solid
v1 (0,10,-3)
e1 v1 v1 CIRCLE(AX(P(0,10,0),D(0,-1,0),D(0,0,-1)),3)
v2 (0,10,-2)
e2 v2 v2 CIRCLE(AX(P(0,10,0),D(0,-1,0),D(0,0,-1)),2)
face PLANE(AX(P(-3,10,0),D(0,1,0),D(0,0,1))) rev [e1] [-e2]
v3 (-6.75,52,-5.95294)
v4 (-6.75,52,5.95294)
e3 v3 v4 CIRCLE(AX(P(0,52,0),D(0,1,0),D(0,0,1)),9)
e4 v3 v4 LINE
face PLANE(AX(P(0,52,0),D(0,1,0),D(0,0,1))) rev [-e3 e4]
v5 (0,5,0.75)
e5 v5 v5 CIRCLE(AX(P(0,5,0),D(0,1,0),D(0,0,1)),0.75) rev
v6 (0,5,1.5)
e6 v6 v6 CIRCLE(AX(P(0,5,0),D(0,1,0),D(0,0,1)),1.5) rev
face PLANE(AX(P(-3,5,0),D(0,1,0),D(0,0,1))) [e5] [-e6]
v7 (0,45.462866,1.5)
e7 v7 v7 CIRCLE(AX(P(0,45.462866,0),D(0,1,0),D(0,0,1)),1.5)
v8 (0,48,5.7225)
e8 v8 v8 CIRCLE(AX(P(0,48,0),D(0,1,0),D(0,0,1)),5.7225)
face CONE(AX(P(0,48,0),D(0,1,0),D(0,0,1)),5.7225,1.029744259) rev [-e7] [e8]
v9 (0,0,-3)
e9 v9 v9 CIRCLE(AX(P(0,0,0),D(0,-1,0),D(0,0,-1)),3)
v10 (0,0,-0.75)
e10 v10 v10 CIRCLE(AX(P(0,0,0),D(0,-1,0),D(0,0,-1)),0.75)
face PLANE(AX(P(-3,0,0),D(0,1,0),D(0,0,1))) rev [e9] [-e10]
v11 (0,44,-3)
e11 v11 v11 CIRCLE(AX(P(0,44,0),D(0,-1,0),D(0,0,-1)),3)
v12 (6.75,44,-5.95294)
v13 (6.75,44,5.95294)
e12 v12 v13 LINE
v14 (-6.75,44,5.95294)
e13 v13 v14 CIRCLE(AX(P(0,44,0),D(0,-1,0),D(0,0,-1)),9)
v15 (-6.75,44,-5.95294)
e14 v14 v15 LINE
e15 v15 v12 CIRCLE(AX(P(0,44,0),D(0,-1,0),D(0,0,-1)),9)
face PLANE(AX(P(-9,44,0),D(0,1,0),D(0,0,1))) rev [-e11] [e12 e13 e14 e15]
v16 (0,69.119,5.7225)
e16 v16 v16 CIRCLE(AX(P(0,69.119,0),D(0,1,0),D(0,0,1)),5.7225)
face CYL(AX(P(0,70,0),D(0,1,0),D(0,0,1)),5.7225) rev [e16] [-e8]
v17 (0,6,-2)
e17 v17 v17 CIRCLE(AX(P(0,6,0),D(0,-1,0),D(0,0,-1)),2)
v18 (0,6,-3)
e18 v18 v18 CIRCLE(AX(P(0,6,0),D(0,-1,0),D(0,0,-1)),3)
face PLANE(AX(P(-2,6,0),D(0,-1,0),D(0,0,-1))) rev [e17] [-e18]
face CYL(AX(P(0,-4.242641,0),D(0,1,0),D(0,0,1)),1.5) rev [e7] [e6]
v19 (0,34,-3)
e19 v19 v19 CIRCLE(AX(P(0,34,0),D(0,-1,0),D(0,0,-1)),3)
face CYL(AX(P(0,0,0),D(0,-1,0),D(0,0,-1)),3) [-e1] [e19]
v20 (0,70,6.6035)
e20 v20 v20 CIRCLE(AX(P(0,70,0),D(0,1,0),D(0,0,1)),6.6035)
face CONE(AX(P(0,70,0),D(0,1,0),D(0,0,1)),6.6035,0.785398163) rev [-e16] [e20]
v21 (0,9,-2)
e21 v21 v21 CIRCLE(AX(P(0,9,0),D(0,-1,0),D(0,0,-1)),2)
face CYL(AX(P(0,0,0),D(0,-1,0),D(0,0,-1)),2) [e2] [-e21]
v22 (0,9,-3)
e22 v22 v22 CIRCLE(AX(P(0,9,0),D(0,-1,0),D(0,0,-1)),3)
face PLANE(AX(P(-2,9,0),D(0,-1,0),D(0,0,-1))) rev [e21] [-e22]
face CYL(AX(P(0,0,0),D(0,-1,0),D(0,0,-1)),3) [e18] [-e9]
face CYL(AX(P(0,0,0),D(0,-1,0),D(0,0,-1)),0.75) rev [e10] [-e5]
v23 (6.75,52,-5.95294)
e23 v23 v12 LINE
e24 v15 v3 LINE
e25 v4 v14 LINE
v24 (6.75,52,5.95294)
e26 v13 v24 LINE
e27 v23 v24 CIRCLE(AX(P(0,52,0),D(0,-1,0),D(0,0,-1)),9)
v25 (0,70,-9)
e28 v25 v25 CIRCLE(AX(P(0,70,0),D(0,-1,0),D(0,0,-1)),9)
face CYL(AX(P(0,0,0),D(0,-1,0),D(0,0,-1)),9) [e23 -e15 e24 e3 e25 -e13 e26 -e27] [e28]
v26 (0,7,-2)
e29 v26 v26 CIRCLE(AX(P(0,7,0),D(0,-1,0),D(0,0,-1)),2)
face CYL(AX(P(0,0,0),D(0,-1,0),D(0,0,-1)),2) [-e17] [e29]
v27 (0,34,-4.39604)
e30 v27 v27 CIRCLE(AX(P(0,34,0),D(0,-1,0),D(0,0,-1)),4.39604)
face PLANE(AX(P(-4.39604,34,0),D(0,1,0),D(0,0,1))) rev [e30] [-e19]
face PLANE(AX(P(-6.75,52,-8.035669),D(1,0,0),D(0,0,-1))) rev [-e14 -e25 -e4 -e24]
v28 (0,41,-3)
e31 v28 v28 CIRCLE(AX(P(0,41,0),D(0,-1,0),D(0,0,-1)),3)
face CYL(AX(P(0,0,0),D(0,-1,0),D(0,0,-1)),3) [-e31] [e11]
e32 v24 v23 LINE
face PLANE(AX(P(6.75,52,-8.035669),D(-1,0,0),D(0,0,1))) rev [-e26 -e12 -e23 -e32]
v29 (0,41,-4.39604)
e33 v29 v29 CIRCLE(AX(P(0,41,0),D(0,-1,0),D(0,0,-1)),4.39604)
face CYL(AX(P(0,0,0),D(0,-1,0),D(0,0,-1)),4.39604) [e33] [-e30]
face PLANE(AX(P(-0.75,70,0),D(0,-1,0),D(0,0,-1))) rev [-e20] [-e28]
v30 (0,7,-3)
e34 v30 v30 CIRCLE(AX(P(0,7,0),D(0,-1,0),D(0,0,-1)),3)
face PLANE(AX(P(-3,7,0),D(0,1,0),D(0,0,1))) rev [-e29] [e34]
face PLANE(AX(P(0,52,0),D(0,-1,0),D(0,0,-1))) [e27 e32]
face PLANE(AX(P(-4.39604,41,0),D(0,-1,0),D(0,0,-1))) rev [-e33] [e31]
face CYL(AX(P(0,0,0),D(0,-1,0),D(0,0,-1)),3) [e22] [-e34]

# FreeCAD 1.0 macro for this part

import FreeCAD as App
import Part
import Sketcher

V = App.Vector

doc = App.newDocument("Part")
body = doc.addObject("PartDesign::Body", "Body")

# Sketch on XY plane
sketch1 = body.newObject("Sketcher::SketchObject", "Sketch")
sketch1.AttachmentSupport = (doc.getObject("XY_Plane"), [""])
sketch1.MapMode = "FlatFace"
sketch1.addGeometry([
    Part.LineSegment(V(-0.8, 0, 0), V(-0.8, 70, 0)),  # 0
    Part.LineSegment(V(-0.8, 70, 0), V(-9, 70, 0)),  # 1
    Part.LineSegment(V(-9, 70, 0), V(-9, 44, 0)),  # 2
    Part.LineSegment(V(-9, 44, 0), V(-3, 44, 0)),  # 3
    Part.LineSegment(V(-3, 44, 0), V(-3, 41, 0)),  # 4
    Part.LineSegment(V(-3, 41, 0), V(-4.4, 41, 0)),  # 5
    Part.LineSegment(V(-4.4, 41, 0), V(-4.4, 34, 0)),  # 6
    Part.LineSegment(V(-4.4, 34, 0), V(-3, 34, 0)),  # 7
    Part.LineSegment(V(-3, 34, 0), V(-3, 10, 0)),  # 8
    Part.LineSegment(V(-3, 10, 0), V(-2, 10, 0)),  # 9
    Part.LineSegment(V(-2, 10, 0), V(-2, 9, 0)),  # 10
    Part.LineSegment(V(-2, 9, 0), V(-3, 9, 0)),  # 11
    Part.LineSegment(V(-3, 9, 0), V(-3, 7, 0)),  # 12
    Part.LineSegment(V(-3, 7, 0), V(-2, 7, 0)),  # 13
    Part.LineSegment(V(-2, 7, 0), V(-2, 6, 0)),  # 14
    Part.LineSegment(V(-2, 6, 0), V(-3, 6, 0)),  # 15
    Part.LineSegment(V(-3, 6, 0), V(-3, 0, 0)),  # 16
    Part.LineSegment(V(-3, 0, 0), V(-0.8, 0, 0)),  # 17
], False)
sketch1.addConstraint([
    Sketcher.Constraint("Coincident", 0, 2, 1, 1),
    Sketcher.Constraint("Coincident", 1, 2, 2, 1),
    Sketcher.Constraint("Coincident", 2, 2, 3, 1),
    Sketcher.Constraint("Coincident", 3, 2, 4, 1),
    Sketcher.Constraint("Coincident", 4, 2, 5, 1),
    Sketcher.Constraint("Coincident", 5, 2, 6, 1),
    Sketcher.Constraint("Coincident", 6, 2, 7, 1),
    Sketcher.Constraint("Coincident", 7, 2, 8, 1),
    Sketcher.Constraint("Coincident", 8, 2, 9, 1),
    Sketcher.Constraint("Coincident", 9, 2, 10, 1),
    Sketcher.Constraint("Coincident", 10, 2, 11, 1),
    Sketcher.Constraint("Coincident", 11, 2, 12, 1),
    Sketcher.Constraint("Coincident", 12, 2, 13, 1),
    Sketcher.Constraint("Coincident", 13, 2, 14, 1),
    Sketcher.Constraint("Coincident", 14, 2, 15, 1),
    Sketcher.Constraint("Coincident", 15, 2, 16, 1),
    Sketcher.Constraint("Coincident", 16, 2, 17, 1),
    Sketcher.Constraint("Coincident", 17, 2, 0, 1),
    Sketcher.Constraint("Vertical", 0),
    Sketcher.Constraint("Horizontal", 1),
    Sketcher.Constraint("Vertical", 2),
    Sketcher.Constraint("Horizontal", 3),
    Sketcher.Constraint("Vertical", 4),
    Sketcher.Constraint("Horizontal", 5),
    Sketcher.Constraint("Vertical", 6),
    Sketcher.Constraint("Horizontal", 7),
    Sketcher.Constraint("Vertical", 8),
    Sketcher.Constraint("Horizontal", 9),
    Sketcher.Constraint("Vertical", 10),
    Sketcher.Constraint("Horizontal", 11),
    Sketcher.Constraint("Vertical", 12),
    Sketcher.Constraint("Horizontal", 13),
    Sketcher.Constraint("Vertical", 14),
    Sketcher.Constraint("Horizontal", 15),
    Sketcher.Constraint("Vertical", 16),
    Sketcher.Constraint("Horizontal", 17),
    Sketcher.Constraint("PointOnObject", 16, 2, -1),
    Sketcher.Constraint("Vertical", 4, 2, 7, 2),
    Sketcher.Constraint("Vertical", 8, 2, 11, 2),
    Sketcher.Constraint("Vertical", 10, 2, 13, 2),
    Sketcher.Constraint("Vertical", 12, 2, 15, 2),
    Sketcher.Constraint("Equal", 15, 10),
    Sketcher.Constraint("Equal", 10, 14),
    Sketcher.Constraint("Equal", 3, 16),
    Sketcher.Constraint("DistanceX", 3, 1, 3, 2, 6.0),
    Sketcher.Constraint("DistanceX", 9, 1, 9, 2, 1.0),
    Sketcher.Constraint("DistanceY", 0, 1, 0, 2, 70.0),
    Sketcher.Constraint("DistanceY", 2, 2, 2, 1, 26.0),
    Sketcher.Constraint("DistanceY", 4, 2, 4, 1, 3.0),
    Sketcher.Constraint("DistanceY", 6, 2, 6, 1, 7.0),
    Sketcher.Constraint("DistanceY", 8, 2, 8, 1, 24.0),
    Sketcher.Constraint("DistanceX", 1, 2, -1, 1, 9.0),
    Sketcher.Constraint("DistanceX", 1, 2, 1, 1, 8.25),
    Sketcher.Constraint("DistanceX", 5, 2, 5, 1, 1.39604),
])
revolution = body.newObject("PartDesign::Revolution", "Revolution")
revolution.Profile = sketch1
revolution.ReferenceAxis = (sketch1, ["V_Axis"])
revolution.Angle = 360

# Sketch on XZ plane
sketch2 = body.newObject("Sketcher::SketchObject", "Sketch001")
sketch2.AttachmentSupport = (doc.getObject("XZ_Plane"), [""])
sketch2.MapMode = "FlatFace"
sketch2.AttachmentOffset = App.Placement(V(0, 0, -70), App.Rotation())
sketch2.addGeometry(Part.Circle(V(0, 0, 0), V(0, 0, 1), 1.5), False)
sketch2.addConstraint([
    Sketcher.Constraint("Coincident", 0, 3, -1, 1),
    Sketcher.Constraint("Diameter", 0, 3.0),
])
pocket1 = body.newObject("PartDesign::Pocket", "Pocket")
pocket1.Profile = sketch2
pocket1.Length = 65
pocket1.Reversed = True

# Sketch on XZ plane
sketch3 = body.newObject("Sketcher::SketchObject", "Sketch002")
sketch3.AttachmentSupport = (doc.getObject("XZ_Plane"), [""])
sketch3.MapMode = "FlatFace"
sketch3.AttachmentOffset = App.Placement(V(0, 0, -70), App.Rotation())
sketch3.addGeometry(Part.Circle(V(0, 0, 0), V(0, 0, 1), 6), False)
sketch3.addConstraint([
    Sketcher.Constraint("Coincident", 0, 3, -1, 1),
    Sketcher.Constraint("Diameter", 0, 11.445),
])
doc.recompute()
hole = body.newObject("PartDesign::Hole", "Hole")
hole.Profile = sketch3
hole.ThreadType = "None"
hole.Diameter = 11.445
hole.DepthType = "Dimension"
hole.Depth = 22
hole.DrillPoint = "Angled"
hole.DrillPointAngle = 118
hole.HoleCutType = "Countersink"
hole.HoleCutDiameter = 13.207
hole.HoleCutCountersinkAngle = 90
hole.Reversed = True

# Sketch on XZ plane
sketch4 = body.newObject("Sketcher::SketchObject", "Sketch003")
sketch4.AttachmentSupport = (doc.getObject("XZ_Plane"), [""])
sketch4.MapMode = "FlatFace"
sketch4.AttachmentOffset = App.Placement(V(0, 0, -44), App.Rotation())
sketch4.addGeometry([
    Part.LineSegment(V(-20, 8, 0), V(-20, -8, 0)),  # 0
    Part.LineSegment(V(-20, -8, 0), V(-7, -8, 0)),  # 1
    Part.LineSegment(V(-7, -8, 0), V(-7, 8, 0)),  # 2
    Part.LineSegment(V(-7, 8, 0), V(-20, 8, 0)),  # 3
    Part.LineSegment(V(7, 8, 0), V(7, -8, 0)),  # 4
    Part.LineSegment(V(7, -8, 0), V(20, -8, 0)),  # 5
    Part.LineSegment(V(20, -8, 0), V(20, 8, 0)),  # 6
    Part.LineSegment(V(20, 8, 0), V(7, 8, 0)),  # 7
], False)
sketch4.addConstraint([
    Sketcher.Constraint("Coincident", 0, 2, 1, 1),
    Sketcher.Constraint("Coincident", 1, 2, 2, 1),
    Sketcher.Constraint("Coincident", 2, 2, 3, 1),
    Sketcher.Constraint("Coincident", 3, 2, 0, 1),
    Sketcher.Constraint("Coincident", 4, 2, 5, 1),
    Sketcher.Constraint("Coincident", 5, 2, 6, 1),
    Sketcher.Constraint("Coincident", 6, 2, 7, 1),
    Sketcher.Constraint("Coincident", 7, 2, 4, 1),
    Sketcher.Constraint("Vertical", 0),
    Sketcher.Constraint("Horizontal", 1),
    Sketcher.Constraint("Vertical", 2),
    Sketcher.Constraint("Horizontal", 3),
    Sketcher.Constraint("Vertical", 4),
    Sketcher.Constraint("Horizontal", 5),
    Sketcher.Constraint("Vertical", 6),
    Sketcher.Constraint("Horizontal", 7),
    Sketcher.Constraint("Symmetric", 2, 2, 4, 2, -1, 1),
    Sketcher.Constraint("Symmetric", 0, 2, 6, 2, -1, 1),
    Sketcher.Constraint("Horizontal", 1, 2, 4, 2),
    Sketcher.Constraint("DistanceX", 1, 2, 4, 2, 13.5),
    Sketcher.Constraint("DistanceY", 0, 2, 0, 1, 16.071338),
    Sketcher.Constraint("DistanceX", 1, 1, 1, 2, 13.595595),
])
pocket2 = body.newObject("PartDesign::Pocket", "Pocket001")
pocket2.Profile = sketch4
pocket2.Length = 8

doc.recompute()
